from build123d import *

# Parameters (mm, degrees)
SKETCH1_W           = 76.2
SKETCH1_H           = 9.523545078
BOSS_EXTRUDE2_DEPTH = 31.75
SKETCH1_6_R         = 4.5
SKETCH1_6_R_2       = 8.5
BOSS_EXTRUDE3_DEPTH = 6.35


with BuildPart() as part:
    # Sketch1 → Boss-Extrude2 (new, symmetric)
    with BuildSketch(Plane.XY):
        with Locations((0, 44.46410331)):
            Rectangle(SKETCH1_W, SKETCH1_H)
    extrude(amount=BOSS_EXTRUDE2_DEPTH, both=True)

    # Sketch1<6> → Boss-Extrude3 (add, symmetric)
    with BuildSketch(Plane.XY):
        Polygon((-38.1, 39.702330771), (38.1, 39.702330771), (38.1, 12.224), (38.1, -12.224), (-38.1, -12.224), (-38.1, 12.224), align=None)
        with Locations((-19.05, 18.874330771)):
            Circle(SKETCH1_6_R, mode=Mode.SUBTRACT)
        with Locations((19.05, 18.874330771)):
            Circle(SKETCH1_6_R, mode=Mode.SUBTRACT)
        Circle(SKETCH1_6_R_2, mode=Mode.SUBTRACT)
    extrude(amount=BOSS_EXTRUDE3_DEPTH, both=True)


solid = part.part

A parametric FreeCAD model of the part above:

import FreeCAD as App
import Part
import Sketcher
Q = App.Units.Quantity

doc = App.newDocument("Part")
body = doc.addObject("PartDesign::Body", "Body")

# Sketch on XY plane
sketch1 = body.newObject("Sketcher::SketchObject", "Sketch")
sketch1.AttachmentSupport = (doc.getObject("XY_Plane"), [""])
sketch1.MapMode = "FlatFace"
sketch1.addGeometry(Part.LineSegment(App.Vector(-38, 49, 0), App.Vector(-38, 40, 0)), False)
sketch1.addGeometry(Part.LineSegment(App.Vector(-38, 40, 0), App.Vector(38, 40, 0)), False)
sketch1.addGeometry(Part.LineSegment(App.Vector(38, 40, 0), App.Vector(38, 49, 0)), False)
sketch1.addGeometry(Part.LineSegment(App.Vector(38, 49, 0), App.Vector(-38, 49, 0)), False)
sketch1.addConstraint(Sketcher.Constraint("Coincident", 0, 2, 1, 1))
sketch1.addConstraint(Sketcher.Constraint("Coincident", 1, 2, 2, 1))
sketch1.addConstraint(Sketcher.Constraint("Coincident", 2, 2, 3, 1))
sketch1.addConstraint(Sketcher.Constraint("Coincident", 3, 2, 0, 1))
sketch1.addConstraint(Sketcher.Constraint("Vertical", 0))
sketch1.addConstraint(Sketcher.Constraint("Horizontal", 1))
sketch1.addConstraint(Sketcher.Constraint("Vertical", 2))
sketch1.addConstraint(Sketcher.Constraint("Horizontal", 3))
sketch1.addConstraint(Sketcher.Constraint("DistanceX", 1, 1, 1, 2, Q("3 in")))
sketch1.addConstraint(Sketcher.Constraint("DistanceX", 0, 2, -1, 1, Q("1.5 in")))
sketch1.addConstraint(Sketcher.Constraint("DistanceY", 0, 2, 0, 1, 9.523545))
sketch1.addConstraint(Sketcher.Constraint("DistanceY", -1, 1, 0, 2, 39.702331))
pad1 = body.newObject("PartDesign::Pad", "Pad")
pad1.Profile = sketch1
pad1.Length = Q("2.5 in")
pad1.Midplane = True

# Sketch on XY plane
sketch2 = body.newObject("Sketcher::SketchObject", "Sketch001")
sketch2.AttachmentSupport = (doc.getObject("XY_Plane"), [""])
sketch2.MapMode = "FlatFace"
sketch2.addGeometry(Part.LineSegment(App.Vector(38.1, 39.7, 0), App.Vector(-38.1, 39.7, 0)), False)
sketch2.addGeometry(Part.LineSegment(App.Vector(-38.1, 39.7, 0), App.Vector(-38.1, -12.2, 0)), False)
sketch2.addGeometry(Part.LineSegment(App.Vector(-38.1, -12.2, 0), App.Vector(38.1, -12.2, 0)), False)
sketch2.addGeometry(Part.LineSegment(App.Vector(38.1, -12.2, 0), App.Vector(38.1, 39.7, 0)), False)
sketch2.addGeometry(Part.Circle(App.Vector(0, 0, 0), App.Vector(0, 0, 1), 8.5), False)
sketch2.addGeometry(Part.Circle(App.Vector(19.1, 18.9, 0), App.Vector(0, 0, 1), 4.5), False)
sketch2.addGeometry(Part.Circle(App.Vector(-19.1, 18.9, 0), App.Vector(0, 0, 1), 4.5), False)
sketch2.addConstraint(Sketcher.Constraint("Coincident", 0, 2, 1, 1))
sketch2.addConstraint(Sketcher.Constraint("Coincident", 1, 2, 2, 1))
sketch2.addConstraint(Sketcher.Constraint("Coincident", 2, 2, 3, 1))
sketch2.addConstraint(Sketcher.Constraint("Coincident", 3, 2, 0, 1))
sketch2.addConstraint(Sketcher.Constraint("Horizontal", 0))
sketch2.addConstraint(Sketcher.Constraint("Vertical", 1))
sketch2.addConstraint(Sketcher.Constraint("Horizontal", 2))
sketch2.addConstraint(Sketcher.Constraint("Vertical", 3))
sketch2.addConstraint(Sketcher.Constraint("Coincident", 4, 3, -1, 1))
sketch2.addConstraint(Sketcher.Constraint("Equal", 5, 6))
sketch2.addConstraint(Sketcher.Constraint("Symmetric", 5, 3, 6, 3, -2))
sketch2.addConstraint(Sketcher.Constraint("DistanceX", 0, 2, 0, 1, Q("3 in")))
sketch2.addConstraint(Sketcher.Constraint("DistanceX", 0, 2, -1, 1, Q("1.5 in")))
sketch2.addConstraint(Sketcher.Constraint("DistanceX", 6, 3, 5, 3, Q("1.5 in")))
sketch2.addConstraint(Sketcher.Constraint("Diameter", 4, 17.0))
sketch2.addConstraint(Sketcher.Constraint("Diameter", 5, 9.0))
sketch2.addConstraint(Sketcher.Constraint("DistanceY", 6, 3, 0, 2, Q("0.82 in")))
sketch2.addConstraint(Sketcher.Constraint("DistanceY", 1, 2, 1, 1, 51.926331))
sketch2.addConstraint(Sketcher.Constraint("DistanceY", 1, 2, -1, 1, 12.224))
pad2 = body.newObject("PartDesign::Pad", "Pad001")
pad2.Profile = sketch2
pad2.Length = Q("0.5 in")
pad2.Midplane = True

doc.recompute()
